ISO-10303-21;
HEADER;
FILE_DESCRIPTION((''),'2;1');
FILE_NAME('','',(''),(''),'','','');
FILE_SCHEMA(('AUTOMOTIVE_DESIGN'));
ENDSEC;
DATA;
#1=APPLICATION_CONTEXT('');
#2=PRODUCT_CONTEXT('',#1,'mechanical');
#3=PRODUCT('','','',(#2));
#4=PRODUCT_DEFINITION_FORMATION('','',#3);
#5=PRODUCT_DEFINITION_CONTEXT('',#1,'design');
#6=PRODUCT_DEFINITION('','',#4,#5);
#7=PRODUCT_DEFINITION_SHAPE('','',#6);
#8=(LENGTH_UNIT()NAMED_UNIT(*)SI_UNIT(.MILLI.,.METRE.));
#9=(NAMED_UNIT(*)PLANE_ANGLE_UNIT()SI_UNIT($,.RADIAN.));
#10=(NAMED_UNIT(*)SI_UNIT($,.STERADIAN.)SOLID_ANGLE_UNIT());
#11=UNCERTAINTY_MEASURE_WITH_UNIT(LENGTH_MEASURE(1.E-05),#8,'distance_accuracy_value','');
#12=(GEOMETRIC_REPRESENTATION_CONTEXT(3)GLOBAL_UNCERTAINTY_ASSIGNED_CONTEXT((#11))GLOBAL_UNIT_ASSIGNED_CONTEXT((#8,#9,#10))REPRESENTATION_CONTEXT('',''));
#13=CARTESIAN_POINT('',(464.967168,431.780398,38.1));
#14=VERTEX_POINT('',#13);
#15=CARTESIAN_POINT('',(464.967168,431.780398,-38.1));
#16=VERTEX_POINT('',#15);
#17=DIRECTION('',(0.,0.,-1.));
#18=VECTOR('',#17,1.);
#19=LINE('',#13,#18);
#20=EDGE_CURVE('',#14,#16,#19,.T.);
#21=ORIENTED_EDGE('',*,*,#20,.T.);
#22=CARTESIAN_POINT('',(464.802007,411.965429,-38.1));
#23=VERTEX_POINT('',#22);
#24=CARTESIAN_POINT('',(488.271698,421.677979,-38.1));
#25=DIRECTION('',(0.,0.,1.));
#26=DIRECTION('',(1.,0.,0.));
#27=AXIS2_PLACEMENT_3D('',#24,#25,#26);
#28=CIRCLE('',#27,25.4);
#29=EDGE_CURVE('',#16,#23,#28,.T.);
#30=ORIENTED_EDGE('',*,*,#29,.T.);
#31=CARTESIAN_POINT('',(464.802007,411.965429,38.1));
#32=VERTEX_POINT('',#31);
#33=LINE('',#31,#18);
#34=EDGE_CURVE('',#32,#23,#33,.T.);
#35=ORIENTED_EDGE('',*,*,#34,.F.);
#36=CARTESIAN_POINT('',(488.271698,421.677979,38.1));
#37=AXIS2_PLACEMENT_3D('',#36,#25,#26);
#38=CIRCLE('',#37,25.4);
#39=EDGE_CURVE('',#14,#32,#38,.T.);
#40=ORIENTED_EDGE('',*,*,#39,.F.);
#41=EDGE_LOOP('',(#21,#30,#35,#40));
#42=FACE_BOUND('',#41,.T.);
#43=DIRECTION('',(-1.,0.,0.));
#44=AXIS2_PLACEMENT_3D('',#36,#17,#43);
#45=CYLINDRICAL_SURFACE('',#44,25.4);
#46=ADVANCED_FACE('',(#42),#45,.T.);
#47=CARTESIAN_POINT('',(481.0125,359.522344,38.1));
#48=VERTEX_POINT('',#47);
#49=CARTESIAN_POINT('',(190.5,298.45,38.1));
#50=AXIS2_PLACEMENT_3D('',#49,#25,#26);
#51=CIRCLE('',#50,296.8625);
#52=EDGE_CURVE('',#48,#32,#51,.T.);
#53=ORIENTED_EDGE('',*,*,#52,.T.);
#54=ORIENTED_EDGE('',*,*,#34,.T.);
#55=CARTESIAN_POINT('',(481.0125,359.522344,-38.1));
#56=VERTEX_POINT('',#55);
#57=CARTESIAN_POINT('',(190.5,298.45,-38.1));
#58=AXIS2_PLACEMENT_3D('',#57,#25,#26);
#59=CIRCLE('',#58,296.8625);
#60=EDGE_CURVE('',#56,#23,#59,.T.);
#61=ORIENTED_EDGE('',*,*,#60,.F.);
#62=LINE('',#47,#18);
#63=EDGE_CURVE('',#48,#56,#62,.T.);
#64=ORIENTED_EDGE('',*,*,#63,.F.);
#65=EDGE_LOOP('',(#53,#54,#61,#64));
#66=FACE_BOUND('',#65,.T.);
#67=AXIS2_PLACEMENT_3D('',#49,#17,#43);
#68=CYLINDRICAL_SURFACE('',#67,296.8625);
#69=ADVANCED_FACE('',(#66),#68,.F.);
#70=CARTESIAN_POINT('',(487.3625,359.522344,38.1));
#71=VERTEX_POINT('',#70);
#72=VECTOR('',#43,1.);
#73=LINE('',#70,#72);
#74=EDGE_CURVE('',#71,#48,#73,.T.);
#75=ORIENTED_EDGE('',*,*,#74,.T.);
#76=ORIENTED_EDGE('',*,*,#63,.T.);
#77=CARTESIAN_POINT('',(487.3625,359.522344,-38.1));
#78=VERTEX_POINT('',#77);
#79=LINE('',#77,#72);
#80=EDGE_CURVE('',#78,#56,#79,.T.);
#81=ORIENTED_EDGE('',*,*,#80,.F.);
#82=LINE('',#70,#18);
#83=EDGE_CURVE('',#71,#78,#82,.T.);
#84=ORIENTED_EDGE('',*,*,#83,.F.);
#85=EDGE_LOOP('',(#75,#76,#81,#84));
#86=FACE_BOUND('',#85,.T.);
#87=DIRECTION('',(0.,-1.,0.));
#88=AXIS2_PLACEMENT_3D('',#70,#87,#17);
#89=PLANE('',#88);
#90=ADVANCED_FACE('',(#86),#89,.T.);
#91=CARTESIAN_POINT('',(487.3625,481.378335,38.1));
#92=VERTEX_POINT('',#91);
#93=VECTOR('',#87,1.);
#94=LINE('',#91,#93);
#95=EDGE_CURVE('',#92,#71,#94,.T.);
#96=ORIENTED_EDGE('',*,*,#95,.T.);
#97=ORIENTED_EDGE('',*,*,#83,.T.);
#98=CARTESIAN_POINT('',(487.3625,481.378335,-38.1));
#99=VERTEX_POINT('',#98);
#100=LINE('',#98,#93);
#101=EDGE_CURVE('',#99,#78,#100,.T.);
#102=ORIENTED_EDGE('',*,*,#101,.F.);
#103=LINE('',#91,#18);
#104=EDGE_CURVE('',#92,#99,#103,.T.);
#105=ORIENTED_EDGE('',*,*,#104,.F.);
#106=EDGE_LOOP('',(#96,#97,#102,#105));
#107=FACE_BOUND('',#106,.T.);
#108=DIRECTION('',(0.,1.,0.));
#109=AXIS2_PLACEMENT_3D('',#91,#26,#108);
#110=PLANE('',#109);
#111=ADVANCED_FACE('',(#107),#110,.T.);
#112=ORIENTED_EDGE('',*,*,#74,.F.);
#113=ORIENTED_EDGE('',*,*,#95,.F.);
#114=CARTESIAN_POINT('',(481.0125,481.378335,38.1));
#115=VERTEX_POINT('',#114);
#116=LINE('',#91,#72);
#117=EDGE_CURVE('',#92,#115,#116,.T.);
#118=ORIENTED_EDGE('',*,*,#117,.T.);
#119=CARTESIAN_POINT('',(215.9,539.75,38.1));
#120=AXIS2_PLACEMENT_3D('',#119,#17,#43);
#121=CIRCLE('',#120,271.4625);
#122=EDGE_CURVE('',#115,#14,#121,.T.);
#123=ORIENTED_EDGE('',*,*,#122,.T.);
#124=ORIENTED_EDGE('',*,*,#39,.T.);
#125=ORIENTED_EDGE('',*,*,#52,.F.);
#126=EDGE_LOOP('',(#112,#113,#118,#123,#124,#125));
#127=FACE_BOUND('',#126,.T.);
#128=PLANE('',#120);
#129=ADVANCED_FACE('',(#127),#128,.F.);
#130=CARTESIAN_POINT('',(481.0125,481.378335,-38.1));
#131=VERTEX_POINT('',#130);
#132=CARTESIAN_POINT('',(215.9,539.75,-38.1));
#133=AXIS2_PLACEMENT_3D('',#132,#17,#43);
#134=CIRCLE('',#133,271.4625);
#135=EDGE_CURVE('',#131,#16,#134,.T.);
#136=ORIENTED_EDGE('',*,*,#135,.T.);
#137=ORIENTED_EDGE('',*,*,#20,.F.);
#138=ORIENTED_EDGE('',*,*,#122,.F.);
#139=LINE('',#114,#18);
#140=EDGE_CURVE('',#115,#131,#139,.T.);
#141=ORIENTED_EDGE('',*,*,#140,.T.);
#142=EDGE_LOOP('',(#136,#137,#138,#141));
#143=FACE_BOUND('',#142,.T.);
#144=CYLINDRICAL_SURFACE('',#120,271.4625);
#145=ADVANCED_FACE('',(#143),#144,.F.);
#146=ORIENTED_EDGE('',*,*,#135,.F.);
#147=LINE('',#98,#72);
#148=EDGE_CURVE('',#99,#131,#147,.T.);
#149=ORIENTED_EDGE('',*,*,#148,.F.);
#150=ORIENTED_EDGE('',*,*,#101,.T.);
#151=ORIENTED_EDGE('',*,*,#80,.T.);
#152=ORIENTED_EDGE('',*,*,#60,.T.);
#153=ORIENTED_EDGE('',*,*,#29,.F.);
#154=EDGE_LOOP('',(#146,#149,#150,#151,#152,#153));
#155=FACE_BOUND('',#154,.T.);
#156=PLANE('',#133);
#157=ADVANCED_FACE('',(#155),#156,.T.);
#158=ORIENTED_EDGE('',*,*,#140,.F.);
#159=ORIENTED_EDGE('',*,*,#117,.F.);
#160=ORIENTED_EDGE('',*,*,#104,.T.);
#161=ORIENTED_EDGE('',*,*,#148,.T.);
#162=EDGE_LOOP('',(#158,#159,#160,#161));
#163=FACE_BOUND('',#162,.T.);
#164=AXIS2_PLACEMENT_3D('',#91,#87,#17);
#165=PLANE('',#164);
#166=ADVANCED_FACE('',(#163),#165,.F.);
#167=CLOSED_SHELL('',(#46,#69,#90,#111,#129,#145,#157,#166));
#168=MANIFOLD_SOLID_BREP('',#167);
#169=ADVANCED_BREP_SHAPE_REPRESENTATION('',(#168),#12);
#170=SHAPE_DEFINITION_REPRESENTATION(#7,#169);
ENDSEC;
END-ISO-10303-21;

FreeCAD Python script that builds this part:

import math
import FreeCAD as App
import Part
import Sketcher
Q = App.Units.Quantity

doc = App.newDocument("Part")
body = doc.addObject("PartDesign::Body", "Body")

sketch1 = body.newObject("Sketcher::SketchObject", "Sketch")
sketch1.AttachmentSupport = (doc.getObject("XY_Plane"), [""])
sketch1.MapMode = "FlatFace"
sketch1.addGeometry(Part.LineSegment(App.Vector(487, 360, 0), App.Vector(487, 481, 0)), False)
sketch1.addGeometry(Part.LineSegment(App.Vector(487, 481, 0), App.Vector(481, 481, 0)), False)
sketch1.addGeometry(Part.ArcOfCircle(Part.Circle(App.Vector(216, 540, 0), App.Vector(0, 0, 1), 271), math.radians(-23.44), math.radians(-12.42)), False)
sketch1.addGeometry(Part.ArcOfCircle(Part.Circle(App.Vector(488, 422, 0), App.Vector(0, 0, 1), 25), math.radians(157), math.radians(202)), False)
sketch1.addGeometry(Part.ArcOfCircle(Part.Circle(App.Vector(190, 298, 0), App.Vector(0, 0, 1), 297), math.radians(11.87), math.radians(22.48)), False)
sketch1.addGeometry(Part.LineSegment(App.Vector(481, 360, 0), App.Vector(487, 360, 0)), False)
sketch1.addConstraint(Sketcher.Constraint("Coincident", 0, 2, 1, 1))
sketch1.addConstraint(Sketcher.Constraint("Coincident", 1, 2, 2, 2))
sketch1.addConstraint(Sketcher.Constraint("Tangent", 2, 1, 3, 1))
sketch1.addConstraint(Sketcher.Constraint("Tangent", 3, 2, 4, 2))
sketch1.addConstraint(Sketcher.Constraint("Coincident", 4, 1, 5, 1))
sketch1.addConstraint(Sketcher.Constraint("Coincident", 5, 2, 0, 1))
sketch1.addConstraint(Sketcher.Constraint("Vertical", 0))
sketch1.addConstraint(Sketcher.Constraint("Horizontal", 1))
sketch1.addConstraint(Sketcher.Constraint("Horizontal", 5))
sketch1.addConstraint(Sketcher.Constraint("Vertical", 1, 2, 4, 1))
sketch1.addConstraint(Sketcher.Constraint("Radius", 3, Q("1 in")))
sketch1.addConstraint(Sketcher.Constraint("Radius", 2, Q("10.6875 in")))
sketch1.addConstraint(Sketcher.Constraint("Radius", 4, Q("11.6875 in")))
sketch1.addConstraint(Sketcher.Constraint("DistanceX", 4, 3, 2, 3, Q("1 in")))
sketch1.addConstraint(Sketcher.Constraint("DistanceX", 1, 2, 1, 1, Q("0.25 in")))
sketch1.addConstraint(Sketcher.Constraint("DistanceX", -1, 1, 2, 3, Q("8.5 in")))
sketch1.addConstraint(Sketcher.Constraint("DistanceY", 4, 3, 2, 3, Q("9.5 in")))
sketch1.addConstraint(Sketcher.Constraint("DistanceY", -1, 1, 2, 3, Q("21.25 in")))
sketch1.addConstraint(Sketcher.Constraint("DistanceX", -1, 1, 0, 2, Q("19.1875 in")))
pad1 = body.newObject("PartDesign::Pad", "Pad")
pad1.Profile = sketch1
pad1.Length = Q("3 in")
pad1.Midplane = True

doc.recompute()
